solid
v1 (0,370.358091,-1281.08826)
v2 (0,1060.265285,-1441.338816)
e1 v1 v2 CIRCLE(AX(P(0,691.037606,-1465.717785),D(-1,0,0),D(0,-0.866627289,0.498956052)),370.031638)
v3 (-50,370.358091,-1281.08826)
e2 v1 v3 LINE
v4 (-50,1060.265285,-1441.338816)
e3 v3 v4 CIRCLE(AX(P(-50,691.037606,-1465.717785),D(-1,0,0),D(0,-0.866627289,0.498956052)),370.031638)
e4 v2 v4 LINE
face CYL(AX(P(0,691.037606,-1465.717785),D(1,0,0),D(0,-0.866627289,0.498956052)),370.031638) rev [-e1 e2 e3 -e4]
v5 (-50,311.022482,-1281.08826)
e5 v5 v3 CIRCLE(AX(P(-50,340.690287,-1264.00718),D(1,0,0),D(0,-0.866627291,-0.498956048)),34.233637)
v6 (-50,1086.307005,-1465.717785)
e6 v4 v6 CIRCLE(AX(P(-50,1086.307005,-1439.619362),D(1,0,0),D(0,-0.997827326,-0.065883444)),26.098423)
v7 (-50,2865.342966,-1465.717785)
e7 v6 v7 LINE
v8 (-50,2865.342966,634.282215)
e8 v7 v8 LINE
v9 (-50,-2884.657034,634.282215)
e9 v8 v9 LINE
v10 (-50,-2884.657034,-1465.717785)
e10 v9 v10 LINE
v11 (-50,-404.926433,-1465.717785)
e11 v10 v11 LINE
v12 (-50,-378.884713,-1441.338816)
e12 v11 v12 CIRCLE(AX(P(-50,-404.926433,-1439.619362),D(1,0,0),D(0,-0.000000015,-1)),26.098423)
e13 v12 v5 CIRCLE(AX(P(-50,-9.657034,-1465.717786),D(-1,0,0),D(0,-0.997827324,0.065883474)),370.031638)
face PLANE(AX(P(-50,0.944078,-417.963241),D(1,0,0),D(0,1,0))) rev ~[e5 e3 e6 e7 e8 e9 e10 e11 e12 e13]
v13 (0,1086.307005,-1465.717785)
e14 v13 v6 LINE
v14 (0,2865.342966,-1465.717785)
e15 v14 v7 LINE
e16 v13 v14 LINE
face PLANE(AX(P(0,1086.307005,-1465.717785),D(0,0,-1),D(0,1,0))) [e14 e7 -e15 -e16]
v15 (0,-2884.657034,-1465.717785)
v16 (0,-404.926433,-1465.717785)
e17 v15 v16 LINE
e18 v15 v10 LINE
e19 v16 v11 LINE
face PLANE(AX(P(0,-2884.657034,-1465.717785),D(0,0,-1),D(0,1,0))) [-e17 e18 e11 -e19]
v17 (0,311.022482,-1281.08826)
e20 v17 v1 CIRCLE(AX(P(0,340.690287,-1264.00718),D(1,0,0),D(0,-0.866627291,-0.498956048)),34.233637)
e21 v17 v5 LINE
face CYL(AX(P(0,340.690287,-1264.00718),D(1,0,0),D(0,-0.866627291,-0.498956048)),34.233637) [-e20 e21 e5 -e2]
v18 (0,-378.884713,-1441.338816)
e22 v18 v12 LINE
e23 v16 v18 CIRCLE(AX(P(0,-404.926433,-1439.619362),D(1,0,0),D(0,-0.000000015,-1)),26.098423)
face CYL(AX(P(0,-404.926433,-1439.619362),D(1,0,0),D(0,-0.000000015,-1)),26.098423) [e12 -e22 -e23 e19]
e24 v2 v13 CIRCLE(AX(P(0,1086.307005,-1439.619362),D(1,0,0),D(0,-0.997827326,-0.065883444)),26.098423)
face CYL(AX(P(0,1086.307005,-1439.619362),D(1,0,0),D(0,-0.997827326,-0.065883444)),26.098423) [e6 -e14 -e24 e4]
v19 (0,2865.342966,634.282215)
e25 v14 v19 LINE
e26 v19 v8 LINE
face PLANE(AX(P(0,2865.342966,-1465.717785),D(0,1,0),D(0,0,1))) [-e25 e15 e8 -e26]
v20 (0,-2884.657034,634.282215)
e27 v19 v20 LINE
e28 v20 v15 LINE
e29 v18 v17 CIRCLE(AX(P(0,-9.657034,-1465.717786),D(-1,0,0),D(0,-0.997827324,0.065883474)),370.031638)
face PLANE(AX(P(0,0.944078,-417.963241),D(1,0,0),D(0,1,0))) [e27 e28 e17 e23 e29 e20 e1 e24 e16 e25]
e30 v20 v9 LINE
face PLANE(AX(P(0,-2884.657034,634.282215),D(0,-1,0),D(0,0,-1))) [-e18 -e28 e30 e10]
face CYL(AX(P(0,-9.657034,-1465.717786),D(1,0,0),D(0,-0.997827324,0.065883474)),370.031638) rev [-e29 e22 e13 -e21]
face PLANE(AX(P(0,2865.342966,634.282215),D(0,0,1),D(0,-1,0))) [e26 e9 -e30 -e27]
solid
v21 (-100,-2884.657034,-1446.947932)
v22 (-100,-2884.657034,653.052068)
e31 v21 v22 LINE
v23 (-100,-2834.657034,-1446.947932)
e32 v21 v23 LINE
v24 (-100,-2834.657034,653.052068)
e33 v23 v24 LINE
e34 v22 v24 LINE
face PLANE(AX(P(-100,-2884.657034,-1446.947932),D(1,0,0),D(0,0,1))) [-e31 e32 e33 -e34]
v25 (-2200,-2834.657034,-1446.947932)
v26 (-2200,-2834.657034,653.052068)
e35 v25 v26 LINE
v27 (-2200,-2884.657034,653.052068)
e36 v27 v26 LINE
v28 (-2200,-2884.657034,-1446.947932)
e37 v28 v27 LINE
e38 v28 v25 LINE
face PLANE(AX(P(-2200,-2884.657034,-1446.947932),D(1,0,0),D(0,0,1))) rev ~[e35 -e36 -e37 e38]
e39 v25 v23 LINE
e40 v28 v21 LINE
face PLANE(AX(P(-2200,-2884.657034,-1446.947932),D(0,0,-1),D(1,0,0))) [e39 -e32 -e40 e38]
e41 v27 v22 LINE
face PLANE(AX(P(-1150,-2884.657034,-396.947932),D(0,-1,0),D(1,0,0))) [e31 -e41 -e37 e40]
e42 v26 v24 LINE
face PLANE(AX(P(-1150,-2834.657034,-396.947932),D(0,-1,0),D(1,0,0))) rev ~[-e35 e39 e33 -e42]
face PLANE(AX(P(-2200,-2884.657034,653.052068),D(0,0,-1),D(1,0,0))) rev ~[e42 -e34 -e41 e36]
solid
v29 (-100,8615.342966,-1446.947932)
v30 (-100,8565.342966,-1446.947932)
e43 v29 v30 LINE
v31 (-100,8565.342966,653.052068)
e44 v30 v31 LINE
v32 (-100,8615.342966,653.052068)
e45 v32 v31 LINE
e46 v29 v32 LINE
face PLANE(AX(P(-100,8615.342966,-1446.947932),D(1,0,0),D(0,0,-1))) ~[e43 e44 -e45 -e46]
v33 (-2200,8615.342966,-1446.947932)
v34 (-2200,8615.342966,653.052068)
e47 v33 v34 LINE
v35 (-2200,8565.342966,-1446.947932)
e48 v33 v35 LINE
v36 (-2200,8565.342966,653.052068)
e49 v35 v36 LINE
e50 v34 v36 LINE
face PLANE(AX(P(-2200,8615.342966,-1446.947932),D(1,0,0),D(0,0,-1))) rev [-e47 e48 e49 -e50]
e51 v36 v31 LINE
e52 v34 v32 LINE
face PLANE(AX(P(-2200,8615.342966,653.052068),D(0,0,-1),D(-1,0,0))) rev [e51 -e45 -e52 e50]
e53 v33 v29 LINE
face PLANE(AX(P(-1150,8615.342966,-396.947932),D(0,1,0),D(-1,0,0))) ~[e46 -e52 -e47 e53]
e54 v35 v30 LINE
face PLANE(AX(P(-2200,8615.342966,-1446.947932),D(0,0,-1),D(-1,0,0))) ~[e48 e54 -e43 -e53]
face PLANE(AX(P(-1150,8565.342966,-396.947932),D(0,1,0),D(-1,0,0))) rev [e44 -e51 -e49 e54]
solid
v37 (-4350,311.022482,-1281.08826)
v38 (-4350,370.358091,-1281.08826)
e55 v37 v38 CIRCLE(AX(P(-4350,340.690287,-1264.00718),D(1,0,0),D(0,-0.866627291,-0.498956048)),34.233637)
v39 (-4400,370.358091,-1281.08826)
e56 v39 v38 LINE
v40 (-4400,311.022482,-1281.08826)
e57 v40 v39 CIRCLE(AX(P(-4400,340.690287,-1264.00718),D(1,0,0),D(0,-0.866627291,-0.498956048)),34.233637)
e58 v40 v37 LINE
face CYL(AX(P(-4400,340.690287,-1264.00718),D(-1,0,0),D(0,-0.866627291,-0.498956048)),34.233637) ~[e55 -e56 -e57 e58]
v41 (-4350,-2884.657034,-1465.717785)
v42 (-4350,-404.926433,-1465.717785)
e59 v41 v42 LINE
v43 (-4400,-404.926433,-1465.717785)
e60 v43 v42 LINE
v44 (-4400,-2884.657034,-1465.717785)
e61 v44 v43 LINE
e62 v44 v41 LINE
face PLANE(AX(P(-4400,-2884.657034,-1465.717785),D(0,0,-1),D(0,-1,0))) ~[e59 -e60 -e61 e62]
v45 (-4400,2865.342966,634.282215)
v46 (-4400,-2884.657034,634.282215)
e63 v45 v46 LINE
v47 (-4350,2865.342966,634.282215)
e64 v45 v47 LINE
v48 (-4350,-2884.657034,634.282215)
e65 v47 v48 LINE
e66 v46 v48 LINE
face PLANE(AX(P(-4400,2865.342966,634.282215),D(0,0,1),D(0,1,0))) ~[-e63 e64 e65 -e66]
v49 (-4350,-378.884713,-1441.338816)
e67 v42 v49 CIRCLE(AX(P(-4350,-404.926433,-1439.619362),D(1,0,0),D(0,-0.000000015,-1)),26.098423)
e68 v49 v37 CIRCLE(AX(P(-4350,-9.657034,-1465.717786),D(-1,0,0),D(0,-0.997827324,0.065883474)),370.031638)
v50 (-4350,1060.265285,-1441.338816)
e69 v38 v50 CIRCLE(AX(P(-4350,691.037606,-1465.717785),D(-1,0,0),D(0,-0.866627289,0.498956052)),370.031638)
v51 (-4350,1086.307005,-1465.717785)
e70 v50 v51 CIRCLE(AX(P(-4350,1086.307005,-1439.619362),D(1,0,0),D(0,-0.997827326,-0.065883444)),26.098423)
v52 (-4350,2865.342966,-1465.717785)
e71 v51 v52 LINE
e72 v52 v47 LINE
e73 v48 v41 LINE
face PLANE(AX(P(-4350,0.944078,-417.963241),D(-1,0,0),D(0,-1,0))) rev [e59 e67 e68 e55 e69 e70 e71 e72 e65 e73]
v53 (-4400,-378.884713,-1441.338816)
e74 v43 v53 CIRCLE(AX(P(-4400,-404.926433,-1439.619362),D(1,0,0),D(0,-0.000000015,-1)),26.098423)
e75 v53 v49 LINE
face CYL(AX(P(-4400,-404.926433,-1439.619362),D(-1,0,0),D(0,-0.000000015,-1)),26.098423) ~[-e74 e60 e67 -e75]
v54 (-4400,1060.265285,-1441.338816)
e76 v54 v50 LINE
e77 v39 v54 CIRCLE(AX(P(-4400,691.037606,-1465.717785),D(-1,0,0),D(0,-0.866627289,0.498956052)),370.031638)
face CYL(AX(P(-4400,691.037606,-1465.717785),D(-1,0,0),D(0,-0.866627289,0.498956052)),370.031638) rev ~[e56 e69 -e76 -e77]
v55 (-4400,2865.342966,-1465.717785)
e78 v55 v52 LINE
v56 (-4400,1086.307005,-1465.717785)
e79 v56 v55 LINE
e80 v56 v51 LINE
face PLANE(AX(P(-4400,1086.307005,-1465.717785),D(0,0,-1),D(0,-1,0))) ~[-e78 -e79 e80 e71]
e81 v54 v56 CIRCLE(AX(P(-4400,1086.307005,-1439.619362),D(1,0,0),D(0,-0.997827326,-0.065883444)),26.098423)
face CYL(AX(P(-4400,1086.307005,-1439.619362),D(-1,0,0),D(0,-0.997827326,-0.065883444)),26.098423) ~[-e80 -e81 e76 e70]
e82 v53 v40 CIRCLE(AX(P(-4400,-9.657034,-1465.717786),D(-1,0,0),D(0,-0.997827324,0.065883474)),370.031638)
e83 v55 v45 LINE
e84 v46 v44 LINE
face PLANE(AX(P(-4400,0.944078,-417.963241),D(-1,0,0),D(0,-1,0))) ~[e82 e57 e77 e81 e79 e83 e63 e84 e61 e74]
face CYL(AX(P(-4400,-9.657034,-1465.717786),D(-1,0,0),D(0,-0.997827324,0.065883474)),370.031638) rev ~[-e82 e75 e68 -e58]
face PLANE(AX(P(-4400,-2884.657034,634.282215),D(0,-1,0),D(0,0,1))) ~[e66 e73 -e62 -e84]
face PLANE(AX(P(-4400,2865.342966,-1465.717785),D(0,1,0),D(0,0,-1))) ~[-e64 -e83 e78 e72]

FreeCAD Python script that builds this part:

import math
import FreeCAD as App
import Part
import Sketcher

V = App.Vector
Q = App.Units.Quantity

doc = App.newDocument("Part")
body = doc.addObject("PartDesign::Body", "Body")

sketch1 = doc.addObject("Sketcher::SketchObject", "Sketch")
body.addObject(sketch1)
sketch1.AttachmentSupport = (doc.YZ_Plane, [""])
sketch1.MapMode = "FlatFace"
sketch1.addGeometry(Part.LineSegment(V(1086.307005, -1465.717785, 0), V(2865.342966, -1465.717785, 0)), False)
sketch1.addGeometry(Part.LineSegment(V(2865.342966, -1465.717785, 0), V(2865.342966, 634.282215, 0)), False)
sketch1.addGeometry(Part.LineSegment(V(2865.342966, 634.282215, 0), V(-2884.657034, 634.282215, 0)), False)
sketch1.addGeometry(Part.LineSegment(V(-2884.657034, 634.282215, 0), V(-2884.657034, -1465.717785, 0)), False)
sketch1.addGeometry(Part.LineSegment(V(-2884.657034, -1465.717785, 0), V(-404.926433, -1465.717785, 0)), False)
sketch1.addGeometry(Part.ArcOfCircle(Part.Circle(V(-404.926433, -1439.619362, 0), V(0, 0, 1), 26.098423), math.radians(-90.000001), math.radians(-3.777579)), False)
sketch1.addGeometry(Part.ArcOfCircle(Part.Circle(V(-9.657034, -1465.717786, 0), V(0, 0, 1), 370.031638), math.radians(29.930957), math.radians(176.222419)), False)
sketch1.addGeometry(Part.ArcOfCircle(Part.Circle(V(340.690287, -1264.00718, 0), V(0, 0, 1), 34.233637), math.radians(-150.069043), math.radians(-29.930957)), False)
sketch1.addGeometry(Part.ArcOfCircle(Part.Circle(V(691.037606, -1465.717785, 0), V(0, 0, 1), 370.031638), math.radians(3.777581), math.radians(150.069043)), False)
sketch1.addGeometry(Part.ArcOfCircle(Part.Circle(V(1086.307005, -1439.619362, 0), V(0, 0, 1), 26.098423), math.radians(-176.222421), math.radians(-89.999999)), False)
sketch1.addConstraint(Sketcher.Constraint("Coincident", 0, 2, 1, 1))
sketch1.addConstraint(Sketcher.Constraint("Coincident", 1, 2, 2, 1))
sketch1.addConstraint(Sketcher.Constraint("Coincident", 2, 2, 3, 1))
sketch1.addConstraint(Sketcher.Constraint("Coincident", 3, 2, 4, 1))
sketch1.addConstraint(Sketcher.Constraint("Tangent", 4, 2, 5, 1))
sketch1.addConstraint(Sketcher.Constraint("Tangent", 5, 2, 6, 2))
sketch1.addConstraint(Sketcher.Constraint("Tangent", 6, 1, 7, 1))
sketch1.addConstraint(Sketcher.Constraint("Tangent", 7, 2, 8, 2))
sketch1.addConstraint(Sketcher.Constraint("Tangent", 8, 1, 9, 1))
sketch1.addConstraint(Sketcher.Constraint("Tangent", 9, 2, 0, 1))
sketch1.addConstraint(Sketcher.Constraint("Horizontal", 0))
sketch1.addConstraint(Sketcher.Constraint("Vertical", 1))
sketch1.addConstraint(Sketcher.Constraint("Horizontal", 2))
sketch1.addConstraint(Sketcher.Constraint("Vertical", 3))
sketch1.addConstraint(Sketcher.Constraint("Horizontal", 4))
sketch1.addConstraint(Sketcher.Constraint("Equal", 6, 8))
sketch1.addConstraint(Sketcher.Constraint("Equal", 5, 9))
sketch1.addConstraint(Sketcher.Constraint("Horizontal", 6, 3, 8, 3))
sketch1.addConstraint(Sketcher.Constraint("Horizontal", 5, 3, 9, 3))
sketch1.addConstraint(Sketcher.Constraint("Horizontal", 8, 3, 0, 2))
sketch1.addConstraint(Sketcher.Constraint("DistanceX", 2, 2, 2, 1, Q("5750 mm")))
sketch1.addConstraint(Sketcher.Constraint("DistanceY", 1, 1, 1, 2, Q("2100 mm")))
sketch1.addConstraint(Sketcher.Constraint("DistanceX", 6, 3, 0, 2, Q("2875 mm")))
sketch1.addConstraint(Sketcher.Constraint("Radius", 6, Q("370.031638 mm")))
sketch1.addConstraint(Sketcher.Constraint("DistanceX", 4, 1, 4, 2, Q("2479.730601 mm")))
sketch1.addConstraint(Sketcher.Constraint("Radius", 7, Q("34.233637 mm")))
sketch1.addConstraint(Sketcher.Constraint("DistanceX", 5, 2, 7, 3, Q("719.575 mm")))
sketch1.addConstraint(Sketcher.Constraint("DistanceY", 7, 3, -1, 1, Q("1264.00718 mm")))
sketch1.addConstraint(Sketcher.Constraint("DistanceX", -1, 1, 7, 2, Q("370.358091 mm")))
pad1 = doc.addObject("PartDesign::Pad", "Pad")
body.addObject(pad1)
pad1.Profile = sketch1
pad1.Length = 50
pad1.Reversed = True
body2 = doc.addObject("PartDesign::Body", "Body001")

sketch2 = doc.addObject("Sketcher::SketchObject", "Sketch001")
body2.addObject(sketch2)
sketch2.AttachmentSupport = (doc.getObject("XZ_Plane001"), [""])
sketch2.MapMode = "FlatFace"
sketch2.AttachmentOffset = App.Placement(V(0, 0, 2884.657034), App.Rotation())
sketch2.addGeometry(Part.LineSegment(V(-2200, 653.052068, 0), V(-2200, -1446.947932, 0)), False)
sketch2.addGeometry(Part.LineSegment(V(-2200, -1446.947932, 0), V(-100, -1446.947932, 0)), False)
sketch2.addGeometry(Part.LineSegment(V(-100, -1446.947932, 0), V(-100, 653.052068, 0)), False)
sketch2.addGeometry(Part.LineSegment(V(-100, 653.052068, 0), V(-2200, 653.052068, 0)), False)
sketch2.addConstraint(Sketcher.Constraint("Coincident", 0, 2, 1, 1))
sketch2.addConstraint(Sketcher.Constraint("Coincident", 1, 2, 2, 1))
sketch2.addConstraint(Sketcher.Constraint("Coincident", 2, 2, 3, 1))
sketch2.addConstraint(Sketcher.Constraint("Coincident", 3, 2, 0, 1))
sketch2.addConstraint(Sketcher.Constraint("Vertical", 0))
sketch2.addConstraint(Sketcher.Constraint("Horizontal", 1))
sketch2.addConstraint(Sketcher.Constraint("Vertical", 2))
sketch2.addConstraint(Sketcher.Constraint("Horizontal", 3))
sketch2.addConstraint(Sketcher.Constraint("Equal", 3, 0))
sketch2.addConstraint(Sketcher.Constraint("DistanceX", 1, 1, 1, 2, Q("2100 mm")))
sketch2.addConstraint(Sketcher.Constraint("DistanceX", 0, 2, -1, 1, Q("2200 mm")))
sketch2.addConstraint(Sketcher.Constraint("DistanceY", 0, 2, -1, 1, Q("1446.947932 mm")))
pad2 = doc.addObject("PartDesign::Pad", "Pad001")
body2.addObject(pad2)
pad2.Profile = sketch2
pad2.Length = 50
pad2.Reversed = True
body3 = doc.addObject("PartDesign::Body", "Body002")
doc.recompute()

mirroring = doc.addObject("Part::Mirroring", "Mirroring")
mirroring.Source = body
mirroring.Base = V(-2200, -2859.657034, -396.947932)
mirroring.Normal = V(-1, 0, 0)
body3.BaseFeature = mirroring
doc.recompute()
body4 = doc.addObject("PartDesign::Body", "Body003")
doc.recompute()

mirroring2 = doc.addObject("Part::Mirroring", "Mirroring001")
mirroring2.Source = body2
mirroring2.Base = V(-25, 2865.342966, -415.717785)
mirroring2.Normal = V(0, 1, 0)
body4.BaseFeature = mirroring2
doc.recompute()
mirroring.Visibility = False
mirroring2.Visibility = False

doc.recompute()
